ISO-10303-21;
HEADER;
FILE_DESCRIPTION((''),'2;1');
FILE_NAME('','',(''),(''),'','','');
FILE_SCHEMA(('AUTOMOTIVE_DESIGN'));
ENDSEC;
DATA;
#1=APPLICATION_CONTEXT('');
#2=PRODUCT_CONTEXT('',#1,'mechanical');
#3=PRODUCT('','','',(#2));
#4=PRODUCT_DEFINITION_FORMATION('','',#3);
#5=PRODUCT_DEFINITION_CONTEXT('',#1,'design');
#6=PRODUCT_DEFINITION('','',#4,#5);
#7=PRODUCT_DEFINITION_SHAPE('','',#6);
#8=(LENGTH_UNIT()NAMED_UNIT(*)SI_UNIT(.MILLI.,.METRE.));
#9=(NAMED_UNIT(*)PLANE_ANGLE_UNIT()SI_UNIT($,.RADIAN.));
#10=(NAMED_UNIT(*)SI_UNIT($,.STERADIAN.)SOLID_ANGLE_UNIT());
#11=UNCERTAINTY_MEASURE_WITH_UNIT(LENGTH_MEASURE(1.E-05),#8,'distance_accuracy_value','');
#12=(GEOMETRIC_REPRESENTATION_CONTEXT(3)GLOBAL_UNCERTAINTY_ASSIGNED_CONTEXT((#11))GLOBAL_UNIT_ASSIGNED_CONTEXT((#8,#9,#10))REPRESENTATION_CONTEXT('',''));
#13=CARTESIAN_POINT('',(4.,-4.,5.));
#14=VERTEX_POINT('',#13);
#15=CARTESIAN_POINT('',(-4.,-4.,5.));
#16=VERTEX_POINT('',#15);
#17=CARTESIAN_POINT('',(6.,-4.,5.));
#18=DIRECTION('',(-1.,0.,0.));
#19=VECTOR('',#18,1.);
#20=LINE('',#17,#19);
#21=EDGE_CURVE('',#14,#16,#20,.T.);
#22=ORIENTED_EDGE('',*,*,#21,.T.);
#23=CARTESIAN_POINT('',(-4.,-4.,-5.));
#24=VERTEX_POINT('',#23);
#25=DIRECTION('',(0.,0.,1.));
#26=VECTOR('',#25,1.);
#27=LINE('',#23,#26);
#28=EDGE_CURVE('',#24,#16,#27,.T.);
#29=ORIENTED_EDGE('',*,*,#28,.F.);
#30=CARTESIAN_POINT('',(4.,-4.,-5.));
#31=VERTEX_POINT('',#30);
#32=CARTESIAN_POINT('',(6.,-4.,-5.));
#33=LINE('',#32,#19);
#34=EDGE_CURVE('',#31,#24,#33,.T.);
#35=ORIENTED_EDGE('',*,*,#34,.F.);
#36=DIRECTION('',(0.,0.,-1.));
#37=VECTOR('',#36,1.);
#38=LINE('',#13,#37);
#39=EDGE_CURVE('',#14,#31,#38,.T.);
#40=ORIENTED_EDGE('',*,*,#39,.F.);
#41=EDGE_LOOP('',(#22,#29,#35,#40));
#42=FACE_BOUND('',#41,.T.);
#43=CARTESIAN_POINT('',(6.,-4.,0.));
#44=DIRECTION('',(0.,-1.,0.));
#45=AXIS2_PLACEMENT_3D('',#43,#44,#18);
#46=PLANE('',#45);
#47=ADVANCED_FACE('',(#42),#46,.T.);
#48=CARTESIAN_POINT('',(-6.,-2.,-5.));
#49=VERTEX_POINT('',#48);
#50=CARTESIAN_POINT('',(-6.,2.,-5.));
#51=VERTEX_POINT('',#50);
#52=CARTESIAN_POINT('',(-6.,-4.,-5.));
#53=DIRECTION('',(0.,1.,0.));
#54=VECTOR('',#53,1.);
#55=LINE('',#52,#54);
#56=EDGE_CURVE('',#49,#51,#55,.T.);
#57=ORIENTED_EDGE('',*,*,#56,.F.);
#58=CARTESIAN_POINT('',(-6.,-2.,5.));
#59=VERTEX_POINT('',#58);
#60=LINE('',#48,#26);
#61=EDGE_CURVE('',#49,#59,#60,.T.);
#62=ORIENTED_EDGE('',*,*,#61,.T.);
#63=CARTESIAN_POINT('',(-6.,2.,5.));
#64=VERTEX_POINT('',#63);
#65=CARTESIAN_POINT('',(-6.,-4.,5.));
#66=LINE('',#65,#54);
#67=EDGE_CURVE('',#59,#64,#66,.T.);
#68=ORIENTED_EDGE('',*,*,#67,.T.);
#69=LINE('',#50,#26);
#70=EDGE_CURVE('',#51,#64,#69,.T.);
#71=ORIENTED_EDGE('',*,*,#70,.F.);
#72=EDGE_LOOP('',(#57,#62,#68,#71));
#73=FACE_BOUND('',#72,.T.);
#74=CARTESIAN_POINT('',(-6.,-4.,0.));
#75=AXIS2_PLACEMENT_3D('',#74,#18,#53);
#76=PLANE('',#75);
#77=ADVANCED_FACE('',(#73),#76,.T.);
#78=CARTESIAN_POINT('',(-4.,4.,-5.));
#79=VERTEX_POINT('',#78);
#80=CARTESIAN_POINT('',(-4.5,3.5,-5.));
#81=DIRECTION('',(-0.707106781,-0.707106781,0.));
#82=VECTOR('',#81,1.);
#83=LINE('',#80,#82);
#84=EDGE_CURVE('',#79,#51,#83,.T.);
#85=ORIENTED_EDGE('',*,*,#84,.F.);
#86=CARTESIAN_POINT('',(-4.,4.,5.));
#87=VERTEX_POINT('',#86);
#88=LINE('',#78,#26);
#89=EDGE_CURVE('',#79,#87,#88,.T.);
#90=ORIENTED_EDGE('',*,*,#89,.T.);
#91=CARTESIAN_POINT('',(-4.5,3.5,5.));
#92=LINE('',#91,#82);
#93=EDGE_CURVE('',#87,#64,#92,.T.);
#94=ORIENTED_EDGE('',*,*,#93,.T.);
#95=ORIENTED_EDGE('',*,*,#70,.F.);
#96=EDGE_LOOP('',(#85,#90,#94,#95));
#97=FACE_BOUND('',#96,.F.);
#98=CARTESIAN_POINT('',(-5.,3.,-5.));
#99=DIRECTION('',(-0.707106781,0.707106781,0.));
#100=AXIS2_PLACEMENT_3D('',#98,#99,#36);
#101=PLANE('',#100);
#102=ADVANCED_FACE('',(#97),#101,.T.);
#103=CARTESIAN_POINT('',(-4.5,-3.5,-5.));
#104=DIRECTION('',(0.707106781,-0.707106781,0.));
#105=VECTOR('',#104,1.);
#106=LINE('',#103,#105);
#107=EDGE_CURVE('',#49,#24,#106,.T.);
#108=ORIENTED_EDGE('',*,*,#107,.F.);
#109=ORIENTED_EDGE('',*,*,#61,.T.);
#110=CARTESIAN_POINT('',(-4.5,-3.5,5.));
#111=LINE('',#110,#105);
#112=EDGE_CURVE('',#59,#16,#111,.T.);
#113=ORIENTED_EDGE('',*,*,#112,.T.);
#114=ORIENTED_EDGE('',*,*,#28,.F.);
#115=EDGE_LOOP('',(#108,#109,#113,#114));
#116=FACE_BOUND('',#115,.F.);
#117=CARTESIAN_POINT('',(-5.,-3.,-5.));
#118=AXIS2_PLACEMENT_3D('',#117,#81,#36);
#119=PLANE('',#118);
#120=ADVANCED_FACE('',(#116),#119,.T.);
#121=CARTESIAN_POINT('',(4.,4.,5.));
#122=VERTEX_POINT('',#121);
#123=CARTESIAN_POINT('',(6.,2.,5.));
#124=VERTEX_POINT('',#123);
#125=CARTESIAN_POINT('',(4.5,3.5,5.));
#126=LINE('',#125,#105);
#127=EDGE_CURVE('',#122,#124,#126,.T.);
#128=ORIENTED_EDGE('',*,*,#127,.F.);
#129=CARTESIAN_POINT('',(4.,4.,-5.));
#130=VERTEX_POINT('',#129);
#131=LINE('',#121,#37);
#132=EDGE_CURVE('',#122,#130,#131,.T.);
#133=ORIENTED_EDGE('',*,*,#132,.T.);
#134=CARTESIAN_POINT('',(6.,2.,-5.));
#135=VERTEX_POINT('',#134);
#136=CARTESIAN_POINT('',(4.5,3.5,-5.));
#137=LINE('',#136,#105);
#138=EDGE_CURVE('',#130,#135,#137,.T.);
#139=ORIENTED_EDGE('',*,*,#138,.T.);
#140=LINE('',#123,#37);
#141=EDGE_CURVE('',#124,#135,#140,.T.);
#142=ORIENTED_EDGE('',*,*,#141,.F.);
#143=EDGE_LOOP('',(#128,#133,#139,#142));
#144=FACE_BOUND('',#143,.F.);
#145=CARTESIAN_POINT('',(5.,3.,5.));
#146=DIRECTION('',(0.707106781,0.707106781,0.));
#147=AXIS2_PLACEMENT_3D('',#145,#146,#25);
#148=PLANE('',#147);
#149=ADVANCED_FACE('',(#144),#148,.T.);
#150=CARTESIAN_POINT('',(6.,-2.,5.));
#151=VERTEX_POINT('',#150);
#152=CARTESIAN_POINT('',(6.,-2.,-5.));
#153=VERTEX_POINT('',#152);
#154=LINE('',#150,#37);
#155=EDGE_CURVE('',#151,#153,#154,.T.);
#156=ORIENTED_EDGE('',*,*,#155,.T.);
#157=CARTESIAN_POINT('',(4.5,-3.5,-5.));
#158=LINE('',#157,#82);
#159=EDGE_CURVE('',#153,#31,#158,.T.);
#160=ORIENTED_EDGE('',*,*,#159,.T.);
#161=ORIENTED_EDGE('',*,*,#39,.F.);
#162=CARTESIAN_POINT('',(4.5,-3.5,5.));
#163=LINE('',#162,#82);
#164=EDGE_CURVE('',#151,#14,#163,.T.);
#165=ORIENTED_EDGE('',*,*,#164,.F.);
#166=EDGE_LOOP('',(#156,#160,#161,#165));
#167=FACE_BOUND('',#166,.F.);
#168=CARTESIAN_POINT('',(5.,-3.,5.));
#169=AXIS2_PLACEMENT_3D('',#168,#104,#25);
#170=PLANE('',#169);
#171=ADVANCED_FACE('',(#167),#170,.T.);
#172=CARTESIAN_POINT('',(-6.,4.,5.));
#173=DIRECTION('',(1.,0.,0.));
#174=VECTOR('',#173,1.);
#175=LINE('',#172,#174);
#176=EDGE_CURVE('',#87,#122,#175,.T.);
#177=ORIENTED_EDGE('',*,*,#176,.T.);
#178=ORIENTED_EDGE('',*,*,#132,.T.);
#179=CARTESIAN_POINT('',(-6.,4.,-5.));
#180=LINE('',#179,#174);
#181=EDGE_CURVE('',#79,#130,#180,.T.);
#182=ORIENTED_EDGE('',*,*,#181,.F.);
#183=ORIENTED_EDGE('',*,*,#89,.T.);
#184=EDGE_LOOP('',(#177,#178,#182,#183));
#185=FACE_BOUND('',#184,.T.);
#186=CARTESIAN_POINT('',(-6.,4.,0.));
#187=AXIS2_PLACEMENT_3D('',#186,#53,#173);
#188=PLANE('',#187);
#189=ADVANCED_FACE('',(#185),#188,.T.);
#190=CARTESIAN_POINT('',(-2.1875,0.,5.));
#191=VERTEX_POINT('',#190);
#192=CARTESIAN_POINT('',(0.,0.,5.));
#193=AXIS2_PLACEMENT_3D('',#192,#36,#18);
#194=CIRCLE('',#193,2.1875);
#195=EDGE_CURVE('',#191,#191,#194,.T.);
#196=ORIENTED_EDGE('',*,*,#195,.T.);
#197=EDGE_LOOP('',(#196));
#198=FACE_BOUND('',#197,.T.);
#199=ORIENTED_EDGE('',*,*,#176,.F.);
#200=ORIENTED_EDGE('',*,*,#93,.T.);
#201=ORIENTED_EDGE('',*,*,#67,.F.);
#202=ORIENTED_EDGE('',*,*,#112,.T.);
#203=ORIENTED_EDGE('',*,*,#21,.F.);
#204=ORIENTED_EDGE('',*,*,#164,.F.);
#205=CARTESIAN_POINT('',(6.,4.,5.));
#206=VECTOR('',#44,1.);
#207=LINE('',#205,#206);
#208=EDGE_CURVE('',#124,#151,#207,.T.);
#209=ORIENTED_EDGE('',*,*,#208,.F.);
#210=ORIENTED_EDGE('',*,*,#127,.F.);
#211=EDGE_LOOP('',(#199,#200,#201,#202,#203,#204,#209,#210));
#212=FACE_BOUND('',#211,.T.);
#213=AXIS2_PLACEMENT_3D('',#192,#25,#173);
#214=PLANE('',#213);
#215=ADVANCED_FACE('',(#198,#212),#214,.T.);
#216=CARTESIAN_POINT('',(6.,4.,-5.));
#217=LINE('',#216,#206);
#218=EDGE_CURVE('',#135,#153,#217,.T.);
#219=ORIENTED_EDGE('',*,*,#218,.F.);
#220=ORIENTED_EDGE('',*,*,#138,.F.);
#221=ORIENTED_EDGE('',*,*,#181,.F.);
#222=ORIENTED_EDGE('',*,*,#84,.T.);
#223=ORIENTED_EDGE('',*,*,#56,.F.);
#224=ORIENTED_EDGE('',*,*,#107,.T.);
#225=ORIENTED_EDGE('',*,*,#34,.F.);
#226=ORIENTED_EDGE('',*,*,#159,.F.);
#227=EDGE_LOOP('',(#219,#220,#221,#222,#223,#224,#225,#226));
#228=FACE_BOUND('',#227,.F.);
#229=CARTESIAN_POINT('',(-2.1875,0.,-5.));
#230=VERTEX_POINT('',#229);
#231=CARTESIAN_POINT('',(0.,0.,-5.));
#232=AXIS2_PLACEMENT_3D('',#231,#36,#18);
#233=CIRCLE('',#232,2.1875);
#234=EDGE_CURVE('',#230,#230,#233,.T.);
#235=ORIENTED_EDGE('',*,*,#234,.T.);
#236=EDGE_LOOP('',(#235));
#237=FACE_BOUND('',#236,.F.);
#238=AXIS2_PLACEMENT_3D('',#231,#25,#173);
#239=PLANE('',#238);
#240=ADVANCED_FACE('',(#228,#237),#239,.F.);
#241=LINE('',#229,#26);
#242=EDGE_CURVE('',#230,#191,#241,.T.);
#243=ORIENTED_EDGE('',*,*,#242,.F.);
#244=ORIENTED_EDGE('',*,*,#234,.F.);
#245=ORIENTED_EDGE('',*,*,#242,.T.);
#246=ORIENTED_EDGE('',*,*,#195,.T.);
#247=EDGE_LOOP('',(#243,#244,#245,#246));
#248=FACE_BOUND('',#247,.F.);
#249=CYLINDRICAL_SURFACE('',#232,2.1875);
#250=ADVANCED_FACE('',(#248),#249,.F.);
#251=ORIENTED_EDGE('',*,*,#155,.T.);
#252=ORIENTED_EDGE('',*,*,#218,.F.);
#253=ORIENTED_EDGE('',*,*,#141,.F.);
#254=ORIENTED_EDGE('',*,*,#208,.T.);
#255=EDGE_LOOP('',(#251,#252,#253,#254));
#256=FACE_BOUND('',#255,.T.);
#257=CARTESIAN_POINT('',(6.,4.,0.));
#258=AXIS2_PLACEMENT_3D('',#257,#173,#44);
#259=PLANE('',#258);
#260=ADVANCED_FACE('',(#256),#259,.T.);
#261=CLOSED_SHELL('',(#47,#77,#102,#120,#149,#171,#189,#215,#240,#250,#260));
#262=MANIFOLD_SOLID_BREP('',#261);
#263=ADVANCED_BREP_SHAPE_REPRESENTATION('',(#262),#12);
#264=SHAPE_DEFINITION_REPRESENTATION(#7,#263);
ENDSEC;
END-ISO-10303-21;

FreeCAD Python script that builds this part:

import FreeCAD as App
import Part
import Sketcher
from FreeCAD import Vector


def edges_at(feature, points):
    """Names of the edges that pass closest to the given points."""
    edges = feature.Shape.Edges
    near = lambda p: min(range(len(edges)), key=lambda i: edges[i].distToShape(Part.Vertex(*p))[0])
    return sorted({f"Edge{near(p) + 1}" for p in points})

doc = App.newDocument("Part")
body = doc.addObject("PartDesign::Body", "Body")

# Sketch on XY plane
sketch1 = body.newObject("Sketcher::SketchObject", "Sketch")
sketch1.AttachmentSupport = (doc.getObject("XY_Plane"), [""])
sketch1.MapMode = "FlatFace"
sketch1.addGeometry(Part.LineSegment(Vector(6, 4, 0), Vector(-6, 4, 0)), False)
sketch1.addGeometry(Part.LineSegment(Vector(-6, 4, 0), Vector(-6, -4, 0)), False)
sketch1.addGeometry(Part.LineSegment(Vector(-6, -4, 0), Vector(6, -4, 0)), False)
sketch1.addGeometry(Part.LineSegment(Vector(6, -4, 0), Vector(6, 4, 0)), False)
sketch1.addConstraint(Sketcher.Constraint("Coincident", 0, 2, 1, 1))
sketch1.addConstraint(Sketcher.Constraint("Coincident", 1, 2, 2, 1))
sketch1.addConstraint(Sketcher.Constraint("Coincident", 2, 2, 3, 1))
sketch1.addConstraint(Sketcher.Constraint("Coincident", 3, 2, 0, 1))
sketch1.addConstraint(Sketcher.Constraint("Horizontal", 0))
sketch1.addConstraint(Sketcher.Constraint("Vertical", 1))
sketch1.addConstraint(Sketcher.Constraint("Horizontal", 2))
sketch1.addConstraint(Sketcher.Constraint("Vertical", 3))
sketch1.addConstraint(Sketcher.Constraint("Symmetric", 0, 2, 2, 2, -1, 1))
sketch1.addConstraint(Sketcher.Constraint("DistanceX", 0, 2, 0, 1, 12.0))
sketch1.addConstraint(Sketcher.Constraint("DistanceY", 1, 2, 1, 1, 8.0))
pad1 = body.newObject("PartDesign::Pad", "Pad")
pad1.Profile = sketch1
pad1.Length = 10
pad1.Midplane = True
doc.recompute()

chamfer = body.newObject("PartDesign::Chamfer", "Chamfer")
chamfer.Base = (pad1, edges_at(pad1, [
    (6, 4, 0),
    (-6, 4, 0),
    (-6, -4, 0),
    (6, -4, 0),
]))
chamfer.Size = 2

# Sketch on XY plane
sketch2 = body.newObject("Sketcher::SketchObject", "Sketch001")
sketch2.AttachmentSupport = (doc.getObject("XY_Plane"), [""])
sketch2.MapMode = "FlatFace"
sketch2.AttachmentOffset = App.Placement(Vector(0, 0, -5), App.Rotation())
sketch2.addGeometry(Part.Circle(Vector(0, 0, 0), Vector(0, 0, 1), 2.2), False)
sketch2.addConstraint(Sketcher.Constraint("Coincident", 0, 3, -1, 1))
sketch2.addConstraint(Sketcher.Constraint("Diameter", 0, 4.375))
pocket1 = body.newObject("PartDesign::Pocket", "Pocket")
pocket1.Profile = sketch2
pocket1.Type = "ThroughAll"
pocket1.Reversed = True

doc.recompute()
